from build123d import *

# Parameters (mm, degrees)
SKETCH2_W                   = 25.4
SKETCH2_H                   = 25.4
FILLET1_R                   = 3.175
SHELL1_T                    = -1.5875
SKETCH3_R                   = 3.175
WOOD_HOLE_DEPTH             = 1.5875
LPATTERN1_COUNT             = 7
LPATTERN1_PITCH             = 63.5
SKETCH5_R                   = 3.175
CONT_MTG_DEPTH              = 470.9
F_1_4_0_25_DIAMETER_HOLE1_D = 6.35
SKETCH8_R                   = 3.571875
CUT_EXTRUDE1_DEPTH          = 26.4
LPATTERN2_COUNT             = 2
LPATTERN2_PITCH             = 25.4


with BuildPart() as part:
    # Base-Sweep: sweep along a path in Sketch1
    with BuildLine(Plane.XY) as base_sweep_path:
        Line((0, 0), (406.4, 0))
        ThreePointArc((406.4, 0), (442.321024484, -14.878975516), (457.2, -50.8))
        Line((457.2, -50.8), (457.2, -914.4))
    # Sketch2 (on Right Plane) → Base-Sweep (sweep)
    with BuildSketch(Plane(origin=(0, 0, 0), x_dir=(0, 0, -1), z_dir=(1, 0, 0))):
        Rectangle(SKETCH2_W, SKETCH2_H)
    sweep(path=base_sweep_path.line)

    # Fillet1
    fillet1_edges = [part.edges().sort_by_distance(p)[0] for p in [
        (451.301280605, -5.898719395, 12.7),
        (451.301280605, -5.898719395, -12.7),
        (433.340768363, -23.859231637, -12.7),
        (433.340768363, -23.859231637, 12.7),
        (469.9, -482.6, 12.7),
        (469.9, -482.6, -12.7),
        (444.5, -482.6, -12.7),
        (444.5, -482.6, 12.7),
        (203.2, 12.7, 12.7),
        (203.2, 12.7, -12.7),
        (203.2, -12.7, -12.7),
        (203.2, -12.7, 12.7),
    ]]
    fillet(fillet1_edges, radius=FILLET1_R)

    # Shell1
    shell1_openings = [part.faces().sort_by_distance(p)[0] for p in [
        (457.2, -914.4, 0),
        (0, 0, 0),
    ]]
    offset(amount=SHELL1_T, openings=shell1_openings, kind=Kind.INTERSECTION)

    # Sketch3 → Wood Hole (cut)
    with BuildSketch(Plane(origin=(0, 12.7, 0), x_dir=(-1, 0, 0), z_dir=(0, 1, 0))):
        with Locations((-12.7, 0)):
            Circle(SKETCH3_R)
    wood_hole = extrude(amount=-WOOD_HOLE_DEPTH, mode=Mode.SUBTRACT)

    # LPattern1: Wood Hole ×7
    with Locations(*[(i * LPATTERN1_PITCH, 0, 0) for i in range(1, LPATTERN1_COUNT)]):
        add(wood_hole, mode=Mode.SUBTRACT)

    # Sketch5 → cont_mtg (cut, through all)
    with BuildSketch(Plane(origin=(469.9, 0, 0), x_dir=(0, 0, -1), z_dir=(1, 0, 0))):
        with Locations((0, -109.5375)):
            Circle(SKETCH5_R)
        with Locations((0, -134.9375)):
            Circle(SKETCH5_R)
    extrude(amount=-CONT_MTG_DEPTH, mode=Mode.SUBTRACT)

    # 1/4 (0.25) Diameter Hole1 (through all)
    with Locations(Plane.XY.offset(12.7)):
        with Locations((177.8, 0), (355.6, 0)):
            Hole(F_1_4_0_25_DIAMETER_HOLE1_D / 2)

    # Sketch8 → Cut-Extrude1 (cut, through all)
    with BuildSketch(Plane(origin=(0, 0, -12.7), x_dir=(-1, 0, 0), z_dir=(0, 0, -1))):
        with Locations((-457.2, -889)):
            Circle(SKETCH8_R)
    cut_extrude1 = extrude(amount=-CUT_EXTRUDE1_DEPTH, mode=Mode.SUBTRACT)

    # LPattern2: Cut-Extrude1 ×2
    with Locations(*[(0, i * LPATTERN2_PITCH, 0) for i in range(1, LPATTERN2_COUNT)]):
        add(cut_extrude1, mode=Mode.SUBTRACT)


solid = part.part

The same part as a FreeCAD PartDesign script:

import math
import FreeCAD as App
import Part
import Sketcher
Q = App.Units.Quantity


def edges_at(feature, points):
    """Names of the edges that pass closest to the given points."""
    edges = feature.Shape.Edges
    near = lambda p: min(range(len(edges)), key=lambda i: edges[i].distToShape(Part.Vertex(*p))[0])
    return sorted({f"Edge{near(p) + 1}" for p in points})


def faces_at(feature, points):
    """Names of the faces that lie closest to the given points."""
    faces = feature.Shape.Faces
    near = lambda p: min(range(len(faces)), key=lambda i: faces[i].distToShape(Part.Vertex(*p))[0])
    return sorted({f"Face{near(p) + 1}" for p in points})

doc = App.newDocument("Part")
body = doc.addObject("PartDesign::Body", "Body")

sketch1 = body.newObject("Sketcher::SketchObject", "Sketch")
sketch1.AttachmentSupport = (doc.getObject("YZ_Plane"), [""])
sketch1.MapMode = "FlatFace"
sketch1.addGeometry([
    Part.LineSegment(App.Vector(13, 13, 0), App.Vector(-13, 13, 0)),
    Part.LineSegment(App.Vector(-13, 13, 0), App.Vector(-13, -13, 0)),
    Part.LineSegment(App.Vector(-13, -13, 0), App.Vector(13, -13, 0)),
    Part.LineSegment(App.Vector(13, -13, 0), App.Vector(13, 13, 0)),
], False)
sketch1.addConstraint([
    Sketcher.Constraint("Coincident", 0, 2, 1, 1),
    Sketcher.Constraint("Coincident", 1, 2, 2, 1),
    Sketcher.Constraint("Coincident", 2, 2, 3, 1),
    Sketcher.Constraint("Coincident", 3, 2, 0, 1),
    Sketcher.Constraint("Horizontal", 0),
    Sketcher.Constraint("Vertical", 1),
    Sketcher.Constraint("Horizontal", 2),
    Sketcher.Constraint("Vertical", 3),
    Sketcher.Constraint("Symmetric", 0, 2, 2, 2, -1, 1),
    Sketcher.Constraint("Equal", 2, 1),
    Sketcher.Constraint("DistanceX", 0, 2, 0, 1, Q("1 in")),
])

sketch2 = body.newObject("Sketcher::SketchObject", "Sketch001")
sketch2.AttachmentSupport = (doc.getObject("XY_Plane"), [""])
sketch2.MapMode = "FlatFace"
sketch2.addGeometry([
    Part.LineSegment(App.Vector(0, 0, 0), App.Vector(406, 0, 0)),
    Part.ArcOfCircle(Part.Circle(App.Vector(406, -51, 0), App.Vector(0, 0, 1), 51), math.radians(0), math.radians(90)),
    Part.LineSegment(App.Vector(457, -51, 0), App.Vector(457, -914, 0)),
], False)
sketch2.addConstraint([
    Sketcher.Constraint("Tangent", 0, 2, 1, 2),
    Sketcher.Constraint("Tangent", 1, 1, 2, 1),
    Sketcher.Constraint("Horizontal", 0),
    Sketcher.Constraint("Vertical", 2),
    Sketcher.Constraint("Coincident", 0, 1, -1, 1),
    Sketcher.Constraint("Radius", 1, Q("2 in")),
    Sketcher.Constraint("DistanceX", 0, 1, 0, 2, Q("16 in")),
    Sketcher.Constraint("DistanceY", 2, 2, 2, 1, Q("34 in")),
])
doc.recompute()

additivepipe = body.newObject("PartDesign::AdditivePipe", "AdditivePipe")
additivepipe.Profile = sketch1
additivepipe.Spine = (sketch2, ["Edge1", "Edge2", "Edge3"])
doc.recompute()

fillet = body.newObject("PartDesign::Fillet", "Fillet")
fillet.Base = (additivepipe, edges_at(additivepipe, [
    (451.301, -5.899, 12.7),
    (451.301, -5.899, -12.7),
    (433.341, -23.859, -12.7),
    (433.341, -23.859, 12.7),
    (469.9, -482.6, 12.7),
    (469.9, -482.6, -12.7),
    (444.5, -482.6, -12.7),
    (444.5, -482.6, 12.7),
    (203.2, 12.7, 12.7),
    (203.2, 12.7, -12.7),
    (203.2, -12.7, -12.7),
    (203.2, -12.7, 12.7),
]))
fillet.Radius = Q("0.125 in")
doc.recompute()

thickness = body.newObject("PartDesign::Thickness", "Thickness")
thickness.Base = (fillet, faces_at(fillet, [(457.2, -914.4, 0), (0, 0, 0)]))
thickness.Value = Q("0.0625 in")
thickness.Reversed = True
thickness.Join = "Intersection"

sketch3 = body.newObject("Sketcher::SketchObject", "Sketch002")
sketch3.AttachmentSupport = (doc.getObject("XZ_Plane"), [""])
sketch3.MapMode = "FlatFace"
sketch3.AttachmentOffset = App.Placement(App.Vector(0, 0, -0.5 * 25.4), App.Rotation())
sketch3.addGeometry(Part.Circle(App.Vector(12.7, 0, 0), App.Vector(0, 0, 1), 3.2), False)
sketch3.addConstraint([
    Sketcher.Constraint("PointOnObject", 0, 3, -1),
    Sketcher.Constraint("Diameter", 0, Q("0.25 in")),
    Sketcher.Constraint("DistanceX", -1, 1, 0, 3, Q("0.5 in")),
])
pocket1 = body.newObject("PartDesign::Pocket", "Pocket")
pocket1.Profile = sketch3
pocket1.Length = Q("0.0625 in")
pocket1.Reversed = True
doc.recompute()

linearpattern = body.newObject("PartDesign::LinearPattern", "LinearPattern")
linearpattern.Originals = [pocket1]
linearpattern.Direction = (doc.getObject("X_Axis"), [""])
linearpattern.Mode = "offset"
linearpattern.Offset = Q("2.5 in")
linearpattern.Occurrences = 7
body.Tip = linearpattern

sketch4 = body.newObject("Sketcher::SketchObject", "Sketch003")
sketch4.AttachmentSupport = (doc.getObject("YZ_Plane"), [""])
sketch4.MapMode = "FlatFace"
sketch4.AttachmentOffset = App.Placement(App.Vector(0, 0, 18.5 * 25.4), App.Rotation())
sketch4.addGeometry([
    Part.Circle(App.Vector(-109.5, 0, 0), App.Vector(0, 0, 1), 3.2),
    Part.Circle(App.Vector(-134.9, 0, 0), App.Vector(0, 0, 1), 3.2),
], False)
sketch4.addConstraint([
    Sketcher.Constraint("Equal", 0, 1),
    Sketcher.Constraint("PointOnObject", 0, 3, -1),
    Sketcher.Constraint("PointOnObject", 1, 3, -1),
    Sketcher.Constraint("Diameter", 0, Q("0.25 in")),
    Sketcher.Constraint("DistanceX", 1, 3, 0, 3, Q("1 in")),
    Sketcher.Constraint("DistanceX", 0, 3, -1, 1, Q("4.3125 in")),
])
pocket2 = body.newObject("PartDesign::Pocket", "Pocket001")
pocket2.Profile = sketch4
pocket2.Type = "ThroughAll"

sketch5 = body.newObject("Sketcher::SketchObject", "Sketch004")
sketch5.AttachmentSupport = (doc.getObject("XY_Plane"), [""])
sketch5.MapMode = "FlatFace"
sketch5.AttachmentOffset = App.Placement(App.Vector(0, 0, 0.5 * 25.4), App.Rotation())
sketch5.addGeometry([
    Part.Circle(App.Vector(177.8, 0, 0), App.Vector(0, 0, 1), 3.2),
    Part.Circle(App.Vector(355.6, 0, 0), App.Vector(0, 0, 1), 3.2),
], False)
sketch5.addConstraint([
    Sketcher.Constraint("Equal", 0, 1),
    Sketcher.Constraint("PointOnObject", 0, 3, -1),
    Sketcher.Constraint("PointOnObject", 1, 3, -1),
    Sketcher.Constraint("Diameter", 0, Q("0.25 in")),
    Sketcher.Constraint("DistanceX", -1, 1, 0, 3, Q("7 in")),
    Sketcher.Constraint("DistanceX", -1, 1, 1, 3, Q("14 in")),
])
doc.recompute()
hole = body.newObject("PartDesign::Hole", "Hole")
hole.Profile = sketch5
hole.ThreadType = "None"
hole.Diameter = Q("0.25 in")
hole.DepthType = "ThroughAll"

sketch6 = body.newObject("Sketcher::SketchObject", "Sketch005")
sketch6.AttachmentSupport = (doc.getObject("XY_Plane"), [""])
sketch6.MapMode = "FlatFace"
sketch6.AttachmentOffset = App.Placement(App.Vector(0, 0, -0.5 * 25.4), App.Rotation())
sketch6.addGeometry(Part.Circle(App.Vector(457.2, -889, 0), App.Vector(0, 0, 1), 3.6), False)
sketch6.addConstraint([
    Sketcher.Constraint("Diameter", 0, Q("0.28125 in")),
    Sketcher.Constraint("DistanceX", -1, 1, 0, 3, Q("18 in")),
    Sketcher.Constraint("DistanceY", 0, 3, -1, 1, Q("35 in")),
])
pocket3 = body.newObject("PartDesign::Pocket", "Pocket002")
pocket3.Profile = sketch6
pocket3.Type = "ThroughAll"
pocket3.Reversed = True
doc.recompute()

linearpattern2 = body.newObject("PartDesign::LinearPattern", "LinearPattern001")
linearpattern2.Originals = [pocket3]
linearpattern2.Direction = (doc.getObject("Y_Axis"), [""])
linearpattern2.Mode = "offset"
linearpattern2.Offset = Q("1 in")
linearpattern2.Occurrences = 2
body.Tip = linearpattern2

doc.recompute()
